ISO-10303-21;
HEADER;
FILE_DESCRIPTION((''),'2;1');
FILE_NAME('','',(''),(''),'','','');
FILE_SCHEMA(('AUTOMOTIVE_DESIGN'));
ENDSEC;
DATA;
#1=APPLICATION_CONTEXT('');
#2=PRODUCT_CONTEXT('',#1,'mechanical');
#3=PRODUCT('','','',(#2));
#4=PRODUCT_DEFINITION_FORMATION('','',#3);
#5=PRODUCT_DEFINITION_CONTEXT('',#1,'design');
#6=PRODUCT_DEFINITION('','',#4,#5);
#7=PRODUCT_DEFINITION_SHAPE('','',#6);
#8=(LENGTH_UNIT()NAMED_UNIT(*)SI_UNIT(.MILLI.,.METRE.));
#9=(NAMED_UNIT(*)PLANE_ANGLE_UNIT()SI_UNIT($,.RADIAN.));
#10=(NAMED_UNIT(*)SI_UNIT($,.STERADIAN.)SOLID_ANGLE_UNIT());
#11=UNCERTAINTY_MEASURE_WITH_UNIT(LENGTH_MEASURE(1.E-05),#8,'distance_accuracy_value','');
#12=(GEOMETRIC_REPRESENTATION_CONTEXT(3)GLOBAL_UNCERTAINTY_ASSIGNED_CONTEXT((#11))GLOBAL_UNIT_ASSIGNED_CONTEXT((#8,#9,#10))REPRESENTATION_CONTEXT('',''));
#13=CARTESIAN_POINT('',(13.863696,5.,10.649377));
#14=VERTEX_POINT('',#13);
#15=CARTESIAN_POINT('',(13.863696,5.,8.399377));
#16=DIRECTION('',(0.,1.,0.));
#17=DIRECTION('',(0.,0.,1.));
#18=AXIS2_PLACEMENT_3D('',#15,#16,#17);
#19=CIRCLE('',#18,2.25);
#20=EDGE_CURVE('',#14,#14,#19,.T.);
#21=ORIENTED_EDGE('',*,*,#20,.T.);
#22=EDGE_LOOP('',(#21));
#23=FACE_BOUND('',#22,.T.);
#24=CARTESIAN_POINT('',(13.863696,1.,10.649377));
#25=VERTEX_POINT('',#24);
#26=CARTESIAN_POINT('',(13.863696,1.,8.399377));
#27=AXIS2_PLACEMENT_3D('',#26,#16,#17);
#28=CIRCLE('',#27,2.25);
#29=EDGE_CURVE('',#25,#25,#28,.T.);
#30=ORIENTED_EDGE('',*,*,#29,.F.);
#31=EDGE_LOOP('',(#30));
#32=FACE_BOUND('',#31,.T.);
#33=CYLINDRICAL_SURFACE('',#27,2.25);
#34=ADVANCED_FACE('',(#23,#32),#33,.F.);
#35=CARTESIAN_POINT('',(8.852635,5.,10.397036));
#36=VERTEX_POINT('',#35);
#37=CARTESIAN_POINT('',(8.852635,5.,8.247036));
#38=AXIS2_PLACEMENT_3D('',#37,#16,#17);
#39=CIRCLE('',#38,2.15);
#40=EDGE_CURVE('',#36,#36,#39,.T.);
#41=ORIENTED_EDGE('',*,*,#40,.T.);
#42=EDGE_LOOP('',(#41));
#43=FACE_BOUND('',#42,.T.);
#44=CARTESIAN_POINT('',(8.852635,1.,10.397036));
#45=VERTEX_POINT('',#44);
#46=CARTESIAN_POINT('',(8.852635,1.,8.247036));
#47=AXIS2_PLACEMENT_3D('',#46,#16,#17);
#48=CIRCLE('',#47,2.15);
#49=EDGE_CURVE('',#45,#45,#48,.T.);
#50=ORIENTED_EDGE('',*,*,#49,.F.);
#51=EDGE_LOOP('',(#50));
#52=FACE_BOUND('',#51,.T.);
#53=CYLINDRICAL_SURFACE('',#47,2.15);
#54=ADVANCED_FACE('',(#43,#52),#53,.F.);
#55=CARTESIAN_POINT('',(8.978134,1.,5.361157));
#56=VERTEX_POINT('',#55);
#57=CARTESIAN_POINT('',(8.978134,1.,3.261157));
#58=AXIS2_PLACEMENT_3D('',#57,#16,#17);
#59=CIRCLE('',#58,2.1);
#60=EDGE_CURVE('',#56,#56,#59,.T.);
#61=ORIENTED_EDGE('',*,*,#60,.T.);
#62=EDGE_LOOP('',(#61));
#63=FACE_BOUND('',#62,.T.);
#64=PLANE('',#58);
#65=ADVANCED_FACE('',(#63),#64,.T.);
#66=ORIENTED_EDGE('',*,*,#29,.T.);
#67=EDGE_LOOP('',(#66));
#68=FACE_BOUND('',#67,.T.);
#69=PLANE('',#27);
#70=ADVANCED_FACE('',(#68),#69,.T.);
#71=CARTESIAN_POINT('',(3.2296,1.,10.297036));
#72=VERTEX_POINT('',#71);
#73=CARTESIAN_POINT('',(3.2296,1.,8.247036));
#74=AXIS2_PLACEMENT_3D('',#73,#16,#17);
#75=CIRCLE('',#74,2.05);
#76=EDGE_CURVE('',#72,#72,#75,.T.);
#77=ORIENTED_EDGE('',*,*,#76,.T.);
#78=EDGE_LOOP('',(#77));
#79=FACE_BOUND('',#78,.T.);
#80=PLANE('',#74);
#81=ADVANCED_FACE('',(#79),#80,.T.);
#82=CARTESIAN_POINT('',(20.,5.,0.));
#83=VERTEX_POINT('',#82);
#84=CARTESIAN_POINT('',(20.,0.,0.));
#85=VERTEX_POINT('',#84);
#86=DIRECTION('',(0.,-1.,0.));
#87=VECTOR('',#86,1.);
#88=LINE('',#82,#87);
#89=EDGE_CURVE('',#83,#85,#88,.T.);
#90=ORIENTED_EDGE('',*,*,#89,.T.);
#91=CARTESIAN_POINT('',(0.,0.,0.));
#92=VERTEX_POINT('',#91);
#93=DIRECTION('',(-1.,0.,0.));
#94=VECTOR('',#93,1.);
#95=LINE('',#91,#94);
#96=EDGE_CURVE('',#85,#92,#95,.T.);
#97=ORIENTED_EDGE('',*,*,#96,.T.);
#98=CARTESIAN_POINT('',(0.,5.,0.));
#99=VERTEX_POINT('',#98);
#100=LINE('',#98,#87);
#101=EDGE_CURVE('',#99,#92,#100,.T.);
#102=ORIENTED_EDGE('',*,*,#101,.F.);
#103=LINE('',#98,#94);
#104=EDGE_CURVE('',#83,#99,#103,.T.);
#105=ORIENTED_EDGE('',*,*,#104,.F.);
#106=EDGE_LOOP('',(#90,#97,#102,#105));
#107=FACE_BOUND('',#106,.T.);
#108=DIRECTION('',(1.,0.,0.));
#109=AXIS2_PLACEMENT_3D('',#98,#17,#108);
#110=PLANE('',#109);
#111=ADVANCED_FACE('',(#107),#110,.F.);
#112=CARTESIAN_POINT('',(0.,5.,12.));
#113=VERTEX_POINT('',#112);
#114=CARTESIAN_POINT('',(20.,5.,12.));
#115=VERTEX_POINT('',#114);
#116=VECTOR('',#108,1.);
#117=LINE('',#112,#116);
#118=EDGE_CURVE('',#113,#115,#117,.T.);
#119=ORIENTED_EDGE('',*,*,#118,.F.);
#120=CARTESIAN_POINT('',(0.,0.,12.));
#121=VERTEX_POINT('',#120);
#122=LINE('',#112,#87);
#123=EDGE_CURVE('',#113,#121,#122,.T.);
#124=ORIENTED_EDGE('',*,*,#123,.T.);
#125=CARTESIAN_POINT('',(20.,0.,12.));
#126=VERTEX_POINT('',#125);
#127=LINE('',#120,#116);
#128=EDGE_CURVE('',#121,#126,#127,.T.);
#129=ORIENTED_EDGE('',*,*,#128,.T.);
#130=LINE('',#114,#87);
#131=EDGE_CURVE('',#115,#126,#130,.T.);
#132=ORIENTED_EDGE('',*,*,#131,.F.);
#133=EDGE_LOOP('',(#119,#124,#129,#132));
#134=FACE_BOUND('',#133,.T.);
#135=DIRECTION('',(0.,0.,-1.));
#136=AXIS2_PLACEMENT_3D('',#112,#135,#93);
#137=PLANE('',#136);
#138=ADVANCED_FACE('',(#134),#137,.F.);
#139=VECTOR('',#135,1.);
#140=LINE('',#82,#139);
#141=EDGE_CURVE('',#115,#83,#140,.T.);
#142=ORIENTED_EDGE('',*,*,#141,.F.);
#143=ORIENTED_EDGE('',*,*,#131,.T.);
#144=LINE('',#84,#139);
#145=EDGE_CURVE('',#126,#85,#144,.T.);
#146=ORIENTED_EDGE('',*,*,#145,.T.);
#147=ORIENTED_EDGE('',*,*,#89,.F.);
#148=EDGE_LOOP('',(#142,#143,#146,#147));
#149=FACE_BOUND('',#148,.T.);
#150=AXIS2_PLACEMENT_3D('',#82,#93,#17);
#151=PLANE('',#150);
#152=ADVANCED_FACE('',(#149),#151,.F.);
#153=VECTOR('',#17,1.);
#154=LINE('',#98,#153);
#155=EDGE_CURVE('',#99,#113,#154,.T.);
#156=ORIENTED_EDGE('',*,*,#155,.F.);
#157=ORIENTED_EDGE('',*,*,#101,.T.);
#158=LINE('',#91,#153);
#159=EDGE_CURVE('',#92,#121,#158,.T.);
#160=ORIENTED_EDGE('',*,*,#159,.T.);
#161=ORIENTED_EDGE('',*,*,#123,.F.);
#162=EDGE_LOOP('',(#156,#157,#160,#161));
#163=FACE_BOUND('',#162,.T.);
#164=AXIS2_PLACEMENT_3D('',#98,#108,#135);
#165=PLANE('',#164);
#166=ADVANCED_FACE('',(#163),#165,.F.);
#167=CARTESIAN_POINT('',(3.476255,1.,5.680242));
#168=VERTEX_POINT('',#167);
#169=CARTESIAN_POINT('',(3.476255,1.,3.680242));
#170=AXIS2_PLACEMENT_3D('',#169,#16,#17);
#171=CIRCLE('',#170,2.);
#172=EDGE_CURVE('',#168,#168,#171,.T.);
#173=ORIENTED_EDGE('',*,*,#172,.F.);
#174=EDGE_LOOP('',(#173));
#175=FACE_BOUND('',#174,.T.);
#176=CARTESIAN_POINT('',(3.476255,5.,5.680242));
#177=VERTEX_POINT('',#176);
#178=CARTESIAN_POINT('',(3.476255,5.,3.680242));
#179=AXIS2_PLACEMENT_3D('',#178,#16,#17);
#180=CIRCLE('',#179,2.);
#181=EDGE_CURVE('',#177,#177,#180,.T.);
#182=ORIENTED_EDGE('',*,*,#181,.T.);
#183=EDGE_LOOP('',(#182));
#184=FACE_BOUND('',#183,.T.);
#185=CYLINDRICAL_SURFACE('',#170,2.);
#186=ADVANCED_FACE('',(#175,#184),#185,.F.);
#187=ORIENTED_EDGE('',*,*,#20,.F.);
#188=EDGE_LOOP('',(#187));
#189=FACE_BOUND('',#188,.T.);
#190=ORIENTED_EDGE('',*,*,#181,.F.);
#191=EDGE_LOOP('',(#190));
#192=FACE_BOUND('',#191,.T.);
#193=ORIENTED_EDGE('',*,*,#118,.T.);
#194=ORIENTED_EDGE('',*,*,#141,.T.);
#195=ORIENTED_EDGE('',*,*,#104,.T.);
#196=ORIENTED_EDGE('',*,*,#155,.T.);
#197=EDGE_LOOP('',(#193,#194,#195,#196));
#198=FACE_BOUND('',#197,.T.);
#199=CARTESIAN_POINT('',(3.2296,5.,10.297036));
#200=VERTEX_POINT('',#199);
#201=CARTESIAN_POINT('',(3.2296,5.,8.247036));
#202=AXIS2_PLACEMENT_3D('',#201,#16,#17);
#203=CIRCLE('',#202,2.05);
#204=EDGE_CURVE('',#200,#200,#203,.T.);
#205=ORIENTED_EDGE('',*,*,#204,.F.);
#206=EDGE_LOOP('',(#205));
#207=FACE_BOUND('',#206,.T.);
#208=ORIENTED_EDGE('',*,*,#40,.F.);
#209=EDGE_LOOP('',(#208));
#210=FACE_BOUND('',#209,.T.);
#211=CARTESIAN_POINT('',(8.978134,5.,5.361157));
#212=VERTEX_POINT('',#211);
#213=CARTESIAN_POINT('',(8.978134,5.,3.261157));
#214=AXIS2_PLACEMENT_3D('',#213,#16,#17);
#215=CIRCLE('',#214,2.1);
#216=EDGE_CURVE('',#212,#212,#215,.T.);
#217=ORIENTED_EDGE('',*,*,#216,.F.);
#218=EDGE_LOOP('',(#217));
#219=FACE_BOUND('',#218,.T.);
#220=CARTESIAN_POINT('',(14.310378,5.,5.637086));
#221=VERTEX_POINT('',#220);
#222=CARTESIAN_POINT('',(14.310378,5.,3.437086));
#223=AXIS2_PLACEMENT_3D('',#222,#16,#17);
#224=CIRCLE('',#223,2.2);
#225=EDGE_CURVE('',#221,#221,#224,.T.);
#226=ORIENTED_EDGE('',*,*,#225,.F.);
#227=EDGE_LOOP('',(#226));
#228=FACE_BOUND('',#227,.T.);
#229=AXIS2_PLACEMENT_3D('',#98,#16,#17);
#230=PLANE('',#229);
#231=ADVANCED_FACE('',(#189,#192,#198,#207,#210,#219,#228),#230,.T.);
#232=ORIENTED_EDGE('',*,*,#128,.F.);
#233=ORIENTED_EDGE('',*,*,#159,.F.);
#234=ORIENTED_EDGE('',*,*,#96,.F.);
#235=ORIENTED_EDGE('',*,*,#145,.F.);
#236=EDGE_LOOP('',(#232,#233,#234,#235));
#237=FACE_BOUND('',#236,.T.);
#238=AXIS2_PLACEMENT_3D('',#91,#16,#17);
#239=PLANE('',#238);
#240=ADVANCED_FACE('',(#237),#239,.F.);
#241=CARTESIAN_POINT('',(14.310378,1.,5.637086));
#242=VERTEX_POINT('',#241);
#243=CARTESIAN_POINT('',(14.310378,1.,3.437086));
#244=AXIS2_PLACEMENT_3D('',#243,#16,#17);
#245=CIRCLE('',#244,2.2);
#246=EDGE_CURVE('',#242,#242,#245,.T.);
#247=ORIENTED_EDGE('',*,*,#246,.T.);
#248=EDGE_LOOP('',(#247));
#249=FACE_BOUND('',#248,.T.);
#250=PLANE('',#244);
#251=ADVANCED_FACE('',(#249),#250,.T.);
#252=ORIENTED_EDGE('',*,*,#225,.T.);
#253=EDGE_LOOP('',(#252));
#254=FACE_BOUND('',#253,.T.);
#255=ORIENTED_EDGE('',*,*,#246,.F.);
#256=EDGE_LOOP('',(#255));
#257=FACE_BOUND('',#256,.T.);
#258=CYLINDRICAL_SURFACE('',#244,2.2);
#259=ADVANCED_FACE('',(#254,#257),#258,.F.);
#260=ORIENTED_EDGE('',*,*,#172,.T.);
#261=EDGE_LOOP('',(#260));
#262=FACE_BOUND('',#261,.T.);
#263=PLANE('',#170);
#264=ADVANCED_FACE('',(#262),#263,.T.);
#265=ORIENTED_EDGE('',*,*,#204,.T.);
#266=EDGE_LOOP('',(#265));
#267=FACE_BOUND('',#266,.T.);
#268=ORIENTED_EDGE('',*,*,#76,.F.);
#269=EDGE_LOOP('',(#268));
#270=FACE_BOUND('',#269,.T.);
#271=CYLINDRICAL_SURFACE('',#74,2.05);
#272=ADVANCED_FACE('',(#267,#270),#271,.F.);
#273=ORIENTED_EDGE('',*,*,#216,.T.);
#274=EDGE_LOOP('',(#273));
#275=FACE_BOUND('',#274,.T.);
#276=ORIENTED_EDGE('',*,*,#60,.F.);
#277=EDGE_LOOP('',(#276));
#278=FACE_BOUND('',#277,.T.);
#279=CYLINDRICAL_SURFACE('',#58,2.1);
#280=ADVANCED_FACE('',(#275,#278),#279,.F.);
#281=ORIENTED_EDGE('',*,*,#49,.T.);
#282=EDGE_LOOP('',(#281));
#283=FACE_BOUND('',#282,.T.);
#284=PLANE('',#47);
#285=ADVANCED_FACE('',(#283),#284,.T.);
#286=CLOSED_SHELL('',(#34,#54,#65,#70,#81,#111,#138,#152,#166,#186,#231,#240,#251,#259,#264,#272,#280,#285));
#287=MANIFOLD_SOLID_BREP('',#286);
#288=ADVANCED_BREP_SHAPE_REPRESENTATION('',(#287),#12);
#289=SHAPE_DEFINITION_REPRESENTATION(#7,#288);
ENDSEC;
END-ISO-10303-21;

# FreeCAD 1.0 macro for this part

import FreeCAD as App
import Part
import Sketcher
from FreeCAD import Vector


def add_polygon(sketch, points):
    """Adds a closed chain of lines whose ends are joined by coincident constraints."""
    first, n = sketch.GeometryCount, len(points)
    for a, b in zip(points, points[1:] + points[:1]):
        sketch.addGeometry(Part.LineSegment(App.Vector(*a, 0), App.Vector(*b, 0)), False)
    for i in range(n):
        sketch.addConstraint(Sketcher.Constraint("Coincident", first + i, 2, first + (i + 1) % n, 1))

doc = App.newDocument("Part")
body = doc.addObject("PartDesign::Body", "Body")

# Sketch on XZ plane
sketch1 = doc.addObject("Sketcher::SketchObject", "Sketch")
body.addObject(sketch1)
sketch1.AttachmentSupport = (doc.XZ_Plane, [""])
sketch1.MapMode = "FlatFace"
add_polygon(sketch1, [(0, 0), (0, 12), (20, 12), (20, 0)])  # lines 0-3
sketch1.addConstraint([
    Sketcher.Constraint("Vertical", 0),
    Sketcher.Constraint("Horizontal", 1),
    Sketcher.Constraint("Vertical", 2),
    Sketcher.Constraint("Horizontal", 3),
    Sketcher.Constraint("Coincident", 3, 2, -1, 1),
    Sketcher.Constraint("DistanceX", 1, 1, 1, 2, 20.0),
    Sketcher.Constraint("DistanceY", 0, 1, 0, 2, 12.0),
])
pad1 = doc.addObject("PartDesign::Pad", "Pad")
body.addObject(pad1)
pad1.Profile = sketch1
pad1.Length = 5
pad1.Reversed = True

# Sketch on XZ plane
sketch2 = doc.addObject("Sketcher::SketchObject", "Sketch001")
body.addObject(sketch2)
sketch2.AttachmentSupport = (doc.XZ_Plane, [""])
sketch2.MapMode = "FlatFace"
sketch2.AttachmentOffset = App.Placement(Vector(0, 0, -5), App.Rotation())
sketch2.addGeometry([
    Part.Circle(Vector(3.5, 3.7, 0), Vector(0, 0, 1), 2),  # 0
    Part.Circle(Vector(3.2, 8.2, 0), Vector(0, 0, 1), 2),  # 1
    Part.Circle(Vector(9, 3.3, 0), Vector(0, 0, 1), 2.1),  # 2
    Part.Circle(Vector(8.9, 8.2, 0), Vector(0, 0, 1), 2.1),  # 3
    Part.Circle(Vector(14.3, 3.4, 0), Vector(0, 0, 1), 2.2),  # 4
    Part.Circle(Vector(13.9, 8.4, 0), Vector(0, 0, 1), 2.2),  # 5
], False)
sketch2.addConstraint([
    Sketcher.Constraint("Horizontal", 1, 3, 3, 3),
    Sketcher.Constraint("Diameter", 0, 4.0),
    Sketcher.Constraint("Diameter", 1, 4.1),
    Sketcher.Constraint("Diameter", 2, 4.2),
    Sketcher.Constraint("Diameter", 3, 4.3),
    Sketcher.Constraint("Diameter", 4, 4.4),
    Sketcher.Constraint("Diameter", 5, 4.5),
    Sketcher.Constraint("DistanceX", -1, 1, 1, 3, 3.2296),
    Sketcher.Constraint("DistanceX", 3, 3, 2, 3, 0.125499),
    Sketcher.Constraint("DistanceX", 0, 3, 2, 3, 5.501879),
    Sketcher.Constraint("DistanceY", 2, 3, 1, 3, 4.985878),
    Sketcher.Constraint("DistanceY", 2, 3, 4, 3, 0.175929),
    Sketcher.Constraint("DistanceX", 1, 3, 4, 3, 11.080778),
    Sketcher.Constraint("DistanceX", 5, 3, 4, 3, 0.446681),
    Sketcher.Constraint("DistanceY", 4, 3, 5, 3, 4.962291),
    Sketcher.Constraint("DistanceX", 3, 3, 5, 3, 5.011061),
    Sketcher.Constraint("DistanceY", -1, 1, 0, 3, 3.680242),
    Sketcher.Constraint("DistanceY", -1, 1, 1, 3, 8.247036),
])
pocket1 = doc.addObject("PartDesign::Pocket", "Pocket")
body.addObject(pocket1)
pocket1.Profile = sketch2
pocket1.Length = 4
pocket1.Reversed = True

doc.recompute()
